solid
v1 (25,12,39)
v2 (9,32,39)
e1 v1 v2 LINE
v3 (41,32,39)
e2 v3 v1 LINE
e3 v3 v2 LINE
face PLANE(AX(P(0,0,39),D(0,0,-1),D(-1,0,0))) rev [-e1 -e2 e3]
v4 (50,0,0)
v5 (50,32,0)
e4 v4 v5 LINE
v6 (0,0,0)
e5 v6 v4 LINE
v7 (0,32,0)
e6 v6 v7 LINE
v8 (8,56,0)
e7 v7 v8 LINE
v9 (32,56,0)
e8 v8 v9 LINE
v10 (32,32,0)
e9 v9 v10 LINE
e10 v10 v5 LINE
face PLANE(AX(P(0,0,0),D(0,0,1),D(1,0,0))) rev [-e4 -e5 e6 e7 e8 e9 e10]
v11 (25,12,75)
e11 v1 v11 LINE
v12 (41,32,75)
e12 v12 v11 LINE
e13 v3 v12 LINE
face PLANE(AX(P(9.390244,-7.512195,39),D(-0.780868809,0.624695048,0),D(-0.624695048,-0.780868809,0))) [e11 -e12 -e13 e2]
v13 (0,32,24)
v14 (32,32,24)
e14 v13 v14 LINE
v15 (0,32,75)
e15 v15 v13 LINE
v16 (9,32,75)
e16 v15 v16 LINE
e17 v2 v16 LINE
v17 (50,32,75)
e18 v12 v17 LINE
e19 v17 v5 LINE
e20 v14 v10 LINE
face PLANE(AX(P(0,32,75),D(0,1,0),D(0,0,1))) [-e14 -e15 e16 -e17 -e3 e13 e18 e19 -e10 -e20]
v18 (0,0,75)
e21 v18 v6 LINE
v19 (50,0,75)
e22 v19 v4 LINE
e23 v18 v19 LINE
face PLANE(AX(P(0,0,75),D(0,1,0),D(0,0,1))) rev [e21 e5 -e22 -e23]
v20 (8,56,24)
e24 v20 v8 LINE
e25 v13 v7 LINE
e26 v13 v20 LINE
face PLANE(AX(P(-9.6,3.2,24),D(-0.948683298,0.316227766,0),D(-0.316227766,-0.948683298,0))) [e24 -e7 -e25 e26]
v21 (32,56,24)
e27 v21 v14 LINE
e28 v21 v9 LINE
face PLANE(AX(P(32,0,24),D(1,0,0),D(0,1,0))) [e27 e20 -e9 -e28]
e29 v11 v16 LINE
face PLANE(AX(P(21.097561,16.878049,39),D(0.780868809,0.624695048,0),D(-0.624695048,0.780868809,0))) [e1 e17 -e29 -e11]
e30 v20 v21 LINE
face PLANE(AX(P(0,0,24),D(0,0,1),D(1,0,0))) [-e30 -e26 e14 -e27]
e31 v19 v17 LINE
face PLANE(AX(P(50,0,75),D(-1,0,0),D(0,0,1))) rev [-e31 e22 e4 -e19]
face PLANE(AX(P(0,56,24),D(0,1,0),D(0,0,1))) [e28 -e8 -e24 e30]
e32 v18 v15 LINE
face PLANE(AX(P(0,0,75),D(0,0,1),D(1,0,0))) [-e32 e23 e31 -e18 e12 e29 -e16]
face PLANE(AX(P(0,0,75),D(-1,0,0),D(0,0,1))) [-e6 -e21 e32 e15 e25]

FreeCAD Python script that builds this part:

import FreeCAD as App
import Part
import Sketcher

V = App.Vector
Q = App.Units.Quantity


def add_polygon(sketch, points):
    """Adds a closed chain of lines whose ends are joined by coincident constraints."""
    first, n = sketch.GeometryCount, len(points)
    for a, b in zip(points, points[1:] + points[:1]):
        sketch.addGeometry(Part.LineSegment(App.Vector(*a, 0), App.Vector(*b, 0)), False)
    for i in range(n):
        sketch.addConstraint(Sketcher.Constraint("Coincident", first + i, 2, first + (i + 1) % n, 1))

doc = App.newDocument("Part")
body = doc.addObject("PartDesign::Body", "Body")

# Sketch on XY plane
sketch1 = body.newObject("Sketcher::SketchObject", "Sketch")
sketch1.AttachmentSupport = (doc.getObject("XY_Plane"), [""])
sketch1.MapMode = "FlatFace"
add_polygon(sketch1, [(0, 32), (0, 0), (50, 0), (50, 32)])  # lines 0-3
sketch1.addConstraint([
    Sketcher.Constraint("Vertical", 0),
    Sketcher.Constraint("Horizontal", 1),
    Sketcher.Constraint("Vertical", 2),
    Sketcher.Constraint("Horizontal", 3),
    Sketcher.Constraint("Coincident", 0, 2, -1, 1),
    Sketcher.Constraint("DistanceX", 1, 1, 1, 2, Q("50 mm")),
    Sketcher.Constraint("DistanceY", 0, 2, 0, 1, Q("32 mm")),
])
pad1 = body.newObject("PartDesign::Pad", "Pad")
pad1.Profile = sketch1
pad1.Length = 75

# Sketch on XY plane
sketch2 = body.newObject("Sketcher::SketchObject", "Sketch001")
sketch2.AttachmentSupport = (doc.getObject("XY_Plane"), [""])
sketch2.MapMode = "FlatFace"
add_polygon(sketch2, [(0, 32), (32, 32), (32, 56), (8, 56)])  # lines 0-3
sketch2.addConstraint([
    Sketcher.Constraint("Horizontal", 0),
    Sketcher.Constraint("Vertical", 1),
    Sketcher.Constraint("Horizontal", 2),
    Sketcher.Constraint("PointOnObject", 3, 2, -2),
    Sketcher.Constraint("Equal", 2, 1),
    Sketcher.Constraint("DistanceX", 0, 1, 0, 2, Q("32 mm")),
    Sketcher.Constraint("DistanceX", 2, 2, 2, 1, Q("24 mm")),
    Sketcher.Constraint("DistanceY", -1, 1, 0, 2, Q("32 mm")),
])
pad2 = body.newObject("PartDesign::Pad", "Pad001")
pad2.Profile = sketch2
pad2.Length = 24

# Sketch on XY plane
sketch3 = body.newObject("Sketcher::SketchObject", "Sketch002")
sketch3.AttachmentSupport = (doc.getObject("XY_Plane"), [""])
sketch3.MapMode = "FlatFace"
sketch3.AttachmentOffset = App.Placement(V(0, 0, 75), App.Rotation())
add_polygon(sketch3, [(9, 32), (25, 12), (41, 32)])  # lines 0-2
sketch3.addConstraint([
    Sketcher.Constraint("Horizontal", 2),
    Sketcher.Constraint("Equal", 0, 1),
    Sketcher.Constraint("DistanceX", 2, 2, 2, 1, Q("32 mm")),
    Sketcher.Constraint("DistanceX", -1, 1, 0, 2, Q("25 mm")),
    Sketcher.Constraint("DistanceY", -1, 1, 0, 2, Q("12 mm")),
    Sketcher.Constraint("DistanceY", -1, 1, 1, 2, Q("32 mm")),
])
pocket1 = body.newObject("PartDesign::Pocket", "Pocket")
pocket1.Profile = sketch3
pocket1.Length = 36

doc.recompute()
